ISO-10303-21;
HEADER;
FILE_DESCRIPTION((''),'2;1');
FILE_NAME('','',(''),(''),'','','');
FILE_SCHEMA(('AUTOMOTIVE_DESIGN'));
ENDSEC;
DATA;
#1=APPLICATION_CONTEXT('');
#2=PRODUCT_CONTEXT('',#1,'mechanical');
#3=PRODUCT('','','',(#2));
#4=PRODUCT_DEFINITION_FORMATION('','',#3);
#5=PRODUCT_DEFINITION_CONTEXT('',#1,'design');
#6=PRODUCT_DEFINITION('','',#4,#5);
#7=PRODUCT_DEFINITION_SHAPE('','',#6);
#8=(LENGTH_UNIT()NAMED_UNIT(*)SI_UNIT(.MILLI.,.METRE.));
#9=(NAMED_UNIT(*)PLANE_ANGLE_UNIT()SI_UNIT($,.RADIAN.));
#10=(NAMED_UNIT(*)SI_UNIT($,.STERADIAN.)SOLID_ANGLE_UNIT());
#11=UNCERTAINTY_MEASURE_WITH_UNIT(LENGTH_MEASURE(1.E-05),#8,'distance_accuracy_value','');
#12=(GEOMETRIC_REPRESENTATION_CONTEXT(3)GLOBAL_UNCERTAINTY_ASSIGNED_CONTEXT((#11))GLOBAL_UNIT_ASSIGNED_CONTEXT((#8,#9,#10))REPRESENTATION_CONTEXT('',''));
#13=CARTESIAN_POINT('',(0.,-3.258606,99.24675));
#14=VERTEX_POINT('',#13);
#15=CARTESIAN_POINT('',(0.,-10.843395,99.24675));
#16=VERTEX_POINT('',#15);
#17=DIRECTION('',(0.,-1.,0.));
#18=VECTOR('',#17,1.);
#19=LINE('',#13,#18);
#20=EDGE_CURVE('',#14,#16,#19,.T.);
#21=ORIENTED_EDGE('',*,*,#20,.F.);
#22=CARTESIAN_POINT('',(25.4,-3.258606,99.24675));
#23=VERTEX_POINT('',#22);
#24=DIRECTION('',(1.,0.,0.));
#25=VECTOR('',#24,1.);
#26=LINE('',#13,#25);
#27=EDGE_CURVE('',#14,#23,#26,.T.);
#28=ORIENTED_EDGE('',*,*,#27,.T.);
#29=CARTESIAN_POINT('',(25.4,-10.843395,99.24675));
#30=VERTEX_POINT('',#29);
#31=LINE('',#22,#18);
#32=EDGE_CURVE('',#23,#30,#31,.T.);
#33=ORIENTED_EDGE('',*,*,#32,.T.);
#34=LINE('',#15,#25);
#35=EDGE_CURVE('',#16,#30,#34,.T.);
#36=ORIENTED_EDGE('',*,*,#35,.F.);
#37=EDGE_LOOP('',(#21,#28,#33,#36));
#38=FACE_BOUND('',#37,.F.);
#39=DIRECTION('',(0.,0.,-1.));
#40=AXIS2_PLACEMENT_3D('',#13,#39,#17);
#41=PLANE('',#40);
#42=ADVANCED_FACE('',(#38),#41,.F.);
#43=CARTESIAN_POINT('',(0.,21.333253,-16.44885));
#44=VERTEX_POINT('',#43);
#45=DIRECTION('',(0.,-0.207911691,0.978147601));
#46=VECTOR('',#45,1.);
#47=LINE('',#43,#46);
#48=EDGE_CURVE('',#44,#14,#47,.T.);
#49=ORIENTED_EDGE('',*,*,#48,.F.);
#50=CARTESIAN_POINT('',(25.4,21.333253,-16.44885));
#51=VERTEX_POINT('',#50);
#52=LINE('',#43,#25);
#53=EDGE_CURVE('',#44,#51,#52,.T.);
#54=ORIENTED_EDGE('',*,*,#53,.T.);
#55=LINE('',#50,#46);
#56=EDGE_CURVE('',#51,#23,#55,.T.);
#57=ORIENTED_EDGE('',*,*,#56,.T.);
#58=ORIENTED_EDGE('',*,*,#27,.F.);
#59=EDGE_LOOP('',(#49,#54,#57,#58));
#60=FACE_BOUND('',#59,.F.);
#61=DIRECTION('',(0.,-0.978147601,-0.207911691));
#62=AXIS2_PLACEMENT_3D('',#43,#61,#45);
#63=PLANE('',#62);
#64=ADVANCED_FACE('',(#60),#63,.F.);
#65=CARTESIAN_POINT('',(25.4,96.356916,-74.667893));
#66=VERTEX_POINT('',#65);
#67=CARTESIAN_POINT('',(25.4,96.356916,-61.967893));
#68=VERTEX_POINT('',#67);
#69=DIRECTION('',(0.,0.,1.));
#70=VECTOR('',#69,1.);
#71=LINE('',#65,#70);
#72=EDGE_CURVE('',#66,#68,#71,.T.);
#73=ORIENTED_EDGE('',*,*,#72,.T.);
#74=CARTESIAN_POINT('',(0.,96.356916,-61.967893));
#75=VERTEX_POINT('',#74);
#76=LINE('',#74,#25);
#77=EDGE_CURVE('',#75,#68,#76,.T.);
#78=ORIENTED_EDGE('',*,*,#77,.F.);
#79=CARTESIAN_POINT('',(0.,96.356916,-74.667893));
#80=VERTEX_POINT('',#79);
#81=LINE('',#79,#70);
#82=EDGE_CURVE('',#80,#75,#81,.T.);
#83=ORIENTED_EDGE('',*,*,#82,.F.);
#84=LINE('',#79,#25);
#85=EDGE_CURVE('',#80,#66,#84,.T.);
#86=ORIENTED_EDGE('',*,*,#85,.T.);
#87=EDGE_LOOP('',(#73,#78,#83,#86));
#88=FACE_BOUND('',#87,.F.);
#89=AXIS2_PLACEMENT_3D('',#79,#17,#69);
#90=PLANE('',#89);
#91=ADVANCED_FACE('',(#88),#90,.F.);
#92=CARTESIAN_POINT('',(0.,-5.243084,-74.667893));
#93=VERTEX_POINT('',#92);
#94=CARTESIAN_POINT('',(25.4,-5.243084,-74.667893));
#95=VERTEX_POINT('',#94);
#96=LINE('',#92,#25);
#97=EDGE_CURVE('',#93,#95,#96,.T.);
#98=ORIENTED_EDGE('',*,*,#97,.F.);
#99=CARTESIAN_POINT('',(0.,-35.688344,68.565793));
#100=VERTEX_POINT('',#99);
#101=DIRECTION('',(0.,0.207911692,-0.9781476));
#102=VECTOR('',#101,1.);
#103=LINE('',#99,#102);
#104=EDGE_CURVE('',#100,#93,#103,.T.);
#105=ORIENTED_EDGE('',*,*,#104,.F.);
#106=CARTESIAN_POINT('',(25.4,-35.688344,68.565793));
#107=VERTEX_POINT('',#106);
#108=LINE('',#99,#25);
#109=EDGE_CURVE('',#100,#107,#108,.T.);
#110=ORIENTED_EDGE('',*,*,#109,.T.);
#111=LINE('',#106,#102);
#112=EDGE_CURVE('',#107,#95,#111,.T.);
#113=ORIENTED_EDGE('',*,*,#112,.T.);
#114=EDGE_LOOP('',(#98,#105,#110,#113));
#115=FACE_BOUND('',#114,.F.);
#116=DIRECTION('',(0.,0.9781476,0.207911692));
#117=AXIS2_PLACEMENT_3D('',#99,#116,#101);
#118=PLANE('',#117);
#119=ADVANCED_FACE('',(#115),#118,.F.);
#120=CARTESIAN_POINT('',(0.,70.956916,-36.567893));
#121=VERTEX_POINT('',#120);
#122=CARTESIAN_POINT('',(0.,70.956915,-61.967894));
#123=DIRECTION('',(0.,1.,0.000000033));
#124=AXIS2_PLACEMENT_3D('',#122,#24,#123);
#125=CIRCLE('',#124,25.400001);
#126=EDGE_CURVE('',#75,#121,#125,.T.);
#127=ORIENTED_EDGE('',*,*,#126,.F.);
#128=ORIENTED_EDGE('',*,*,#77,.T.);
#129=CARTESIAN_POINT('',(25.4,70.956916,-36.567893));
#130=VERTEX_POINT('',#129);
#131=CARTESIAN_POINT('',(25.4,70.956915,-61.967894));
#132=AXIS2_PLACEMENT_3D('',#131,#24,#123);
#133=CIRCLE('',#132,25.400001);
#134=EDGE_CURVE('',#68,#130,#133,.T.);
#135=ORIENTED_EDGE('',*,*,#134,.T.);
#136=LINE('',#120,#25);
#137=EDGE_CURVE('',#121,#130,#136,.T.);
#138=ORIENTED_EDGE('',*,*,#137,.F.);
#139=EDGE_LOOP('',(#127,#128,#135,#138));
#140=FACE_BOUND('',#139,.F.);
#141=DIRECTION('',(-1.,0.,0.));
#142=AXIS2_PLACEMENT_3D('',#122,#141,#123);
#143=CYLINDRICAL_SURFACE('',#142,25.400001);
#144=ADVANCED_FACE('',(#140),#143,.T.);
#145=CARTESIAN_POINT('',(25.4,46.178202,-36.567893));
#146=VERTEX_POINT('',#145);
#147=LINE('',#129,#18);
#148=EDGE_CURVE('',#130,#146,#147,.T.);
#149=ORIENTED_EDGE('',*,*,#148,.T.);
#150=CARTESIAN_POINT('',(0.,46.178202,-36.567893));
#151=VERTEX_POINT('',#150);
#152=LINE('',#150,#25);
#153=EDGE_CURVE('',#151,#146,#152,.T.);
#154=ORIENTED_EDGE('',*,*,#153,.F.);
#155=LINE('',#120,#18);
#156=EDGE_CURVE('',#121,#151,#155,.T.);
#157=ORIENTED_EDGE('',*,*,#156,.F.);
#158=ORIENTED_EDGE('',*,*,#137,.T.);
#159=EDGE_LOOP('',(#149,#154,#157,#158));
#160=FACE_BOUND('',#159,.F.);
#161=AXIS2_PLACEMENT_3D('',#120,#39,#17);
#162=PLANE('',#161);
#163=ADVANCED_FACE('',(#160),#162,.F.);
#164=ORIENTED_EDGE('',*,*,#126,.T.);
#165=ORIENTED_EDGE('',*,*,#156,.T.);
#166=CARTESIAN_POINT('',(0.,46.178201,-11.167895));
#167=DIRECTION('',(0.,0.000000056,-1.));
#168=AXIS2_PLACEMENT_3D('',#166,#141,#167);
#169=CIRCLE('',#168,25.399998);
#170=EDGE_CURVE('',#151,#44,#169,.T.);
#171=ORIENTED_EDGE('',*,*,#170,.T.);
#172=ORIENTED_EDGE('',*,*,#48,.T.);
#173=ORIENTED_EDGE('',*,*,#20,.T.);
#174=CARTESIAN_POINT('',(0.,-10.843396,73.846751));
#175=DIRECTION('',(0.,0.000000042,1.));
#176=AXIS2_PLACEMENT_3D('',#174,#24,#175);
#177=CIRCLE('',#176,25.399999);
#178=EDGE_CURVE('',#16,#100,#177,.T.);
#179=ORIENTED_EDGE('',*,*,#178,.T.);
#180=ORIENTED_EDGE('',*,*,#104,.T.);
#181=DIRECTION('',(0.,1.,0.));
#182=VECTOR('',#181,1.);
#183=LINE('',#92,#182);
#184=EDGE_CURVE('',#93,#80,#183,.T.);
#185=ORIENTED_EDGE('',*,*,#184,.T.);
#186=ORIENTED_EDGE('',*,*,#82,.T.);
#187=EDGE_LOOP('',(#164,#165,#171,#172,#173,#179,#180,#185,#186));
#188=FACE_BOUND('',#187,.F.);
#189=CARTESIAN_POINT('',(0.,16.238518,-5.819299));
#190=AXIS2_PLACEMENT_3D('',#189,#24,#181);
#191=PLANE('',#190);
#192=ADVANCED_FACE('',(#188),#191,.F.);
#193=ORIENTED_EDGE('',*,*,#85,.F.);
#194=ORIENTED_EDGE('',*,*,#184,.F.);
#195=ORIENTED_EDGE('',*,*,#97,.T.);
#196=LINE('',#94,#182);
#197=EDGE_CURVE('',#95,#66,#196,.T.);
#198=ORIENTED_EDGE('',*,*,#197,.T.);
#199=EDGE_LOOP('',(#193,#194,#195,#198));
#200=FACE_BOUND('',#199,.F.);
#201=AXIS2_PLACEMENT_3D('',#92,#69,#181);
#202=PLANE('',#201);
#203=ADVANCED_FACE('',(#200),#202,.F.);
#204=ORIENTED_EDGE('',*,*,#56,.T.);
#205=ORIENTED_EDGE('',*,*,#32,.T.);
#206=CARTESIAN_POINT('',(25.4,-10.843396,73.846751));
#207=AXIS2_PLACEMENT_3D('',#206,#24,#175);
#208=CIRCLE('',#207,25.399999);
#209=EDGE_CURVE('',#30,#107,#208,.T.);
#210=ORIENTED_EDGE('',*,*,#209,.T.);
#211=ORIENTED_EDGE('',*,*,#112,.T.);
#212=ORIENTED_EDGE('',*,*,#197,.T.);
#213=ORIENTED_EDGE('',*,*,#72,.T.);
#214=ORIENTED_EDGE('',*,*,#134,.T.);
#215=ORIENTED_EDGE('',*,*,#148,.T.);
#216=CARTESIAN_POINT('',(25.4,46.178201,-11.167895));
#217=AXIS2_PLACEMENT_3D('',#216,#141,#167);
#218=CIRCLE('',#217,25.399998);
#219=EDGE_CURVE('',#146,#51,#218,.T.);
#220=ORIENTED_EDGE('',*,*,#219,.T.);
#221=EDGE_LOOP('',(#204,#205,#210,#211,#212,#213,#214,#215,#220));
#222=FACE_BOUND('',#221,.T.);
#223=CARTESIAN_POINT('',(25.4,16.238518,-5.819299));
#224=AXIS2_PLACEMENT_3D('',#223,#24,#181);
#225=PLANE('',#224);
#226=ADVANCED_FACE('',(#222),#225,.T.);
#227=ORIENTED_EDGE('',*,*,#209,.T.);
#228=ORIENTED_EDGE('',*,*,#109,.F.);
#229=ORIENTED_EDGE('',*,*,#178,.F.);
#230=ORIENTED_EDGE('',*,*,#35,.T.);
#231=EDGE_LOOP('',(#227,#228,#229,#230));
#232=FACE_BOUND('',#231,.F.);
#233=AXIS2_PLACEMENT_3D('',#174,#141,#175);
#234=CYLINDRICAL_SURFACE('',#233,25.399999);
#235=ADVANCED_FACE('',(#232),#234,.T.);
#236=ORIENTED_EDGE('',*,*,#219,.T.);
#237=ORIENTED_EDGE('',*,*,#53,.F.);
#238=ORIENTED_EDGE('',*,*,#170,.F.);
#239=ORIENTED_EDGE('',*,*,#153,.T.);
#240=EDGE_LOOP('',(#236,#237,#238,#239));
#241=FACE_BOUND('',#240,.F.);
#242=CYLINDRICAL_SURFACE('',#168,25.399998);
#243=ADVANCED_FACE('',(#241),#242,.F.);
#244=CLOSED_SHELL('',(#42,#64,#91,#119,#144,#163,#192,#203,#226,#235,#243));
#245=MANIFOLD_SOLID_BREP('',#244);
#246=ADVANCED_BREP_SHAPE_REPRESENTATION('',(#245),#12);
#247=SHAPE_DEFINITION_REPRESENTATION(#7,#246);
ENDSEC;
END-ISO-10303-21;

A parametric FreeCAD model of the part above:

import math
import FreeCAD as App
import Part
import Sketcher

V = App.Vector
Q = App.Units.Quantity

doc = App.newDocument("Part")
body = doc.addObject("PartDesign::Body", "Body")

# Sketch on YZ plane
sketch1 = body.newObject("Sketcher::SketchObject", "Sketch")
sketch1.AttachmentSupport = (doc.getObject("YZ_Plane"), [""])
sketch1.MapMode = "FlatFace"
sketch1.addGeometry(Part.ArcOfCircle(Part.Circle(V(-11, 74, 0), V(0, 0, 1), 25), math.radians(90), math.radians(192)), False)
sketch1.addGeometry(Part.LineSegment(V(-36, 69, 0), V(-5, -75, 0)), False)
sketch1.addGeometry(Part.LineSegment(V(-5, -75, 0), V(96, -75, 0)), False)
sketch1.addGeometry(Part.LineSegment(V(96, -75, 0), V(96, -62, 0)), False)
sketch1.addGeometry(Part.ArcOfCircle(Part.Circle(V(71, -62, 0), V(0, 0, 1), 25), math.radians(0), math.radians(90)), False)
sketch1.addGeometry(Part.LineSegment(V(71, -37, 0), V(46, -37, 0)), False)
sketch1.addGeometry(Part.ArcOfCircle(Part.Circle(V(46, -11, 0), V(0, 0, 1), 25), math.radians(-168), math.radians(-90)), False)
sketch1.addGeometry(Part.LineSegment(V(21, -16, 0), V(-3, 99, 0)), False)
sketch1.addGeometry(Part.LineSegment(V(-3, 99, 0), V(-11, 99, 0)), False)
sketch1.addConstraint(Sketcher.Constraint("Tangent", 0, 2, 1, 1))
sketch1.addConstraint(Sketcher.Constraint("Coincident", 1, 2, 2, 1))
sketch1.addConstraint(Sketcher.Constraint("Coincident", 2, 2, 3, 1))
sketch1.addConstraint(Sketcher.Constraint("Tangent", 3, 2, 4, 1))
sketch1.addConstraint(Sketcher.Constraint("Tangent", 4, 2, 5, 1))
sketch1.addConstraint(Sketcher.Constraint("Tangent", 5, 2, 6, 2))
sketch1.addConstraint(Sketcher.Constraint("Tangent", 6, 1, 7, 1))
sketch1.addConstraint(Sketcher.Constraint("Coincident", 7, 2, 8, 1))
sketch1.addConstraint(Sketcher.Constraint("Tangent", 8, 2, 0, 1))
sketch1.addConstraint(Sketcher.Constraint("Horizontal", 2))
sketch1.addConstraint(Sketcher.Constraint("Vertical", 3))
sketch1.addConstraint(Sketcher.Constraint("Horizontal", 5))
sketch1.addConstraint(Sketcher.Constraint("Horizontal", 8))
sketch1.addConstraint(Sketcher.Constraint("Equal", 0, 4))
sketch1.addConstraint(Sketcher.Constraint("Equal", 0, 6))
sketch1.addConstraint(Sketcher.Constraint("Parallel", 1, 7))
sketch1.addConstraint(Sketcher.Constraint("Radius", 0, Q("1 in")))
sketch1.addConstraint(Sketcher.Constraint("DistanceX", 2, 1, 2, 2, Q("4 in")))
sketch1.addConstraint(Sketcher.Constraint("DistanceY", 3, 1, 3, 2, Q("0.5 in")))
sketch1.addConstraint(Sketcher.Constraint("Angle", 1, Q("-78 deg")))
sketch1.addConstraint(Sketcher.Constraint("DistanceX", 8, 2, 8, 1, Q("7.584789 mm")))
sketch1.addConstraint(Sketcher.Constraint("DistanceX", -1, 1, 6, 3, Q("46.178201 mm")))
sketch1.addConstraint(Sketcher.Constraint("DistanceY", 6, 1, 7, 2, Q("115.6956 mm")))
sketch1.addConstraint(Sketcher.Constraint("DistanceY", -1, 1, 0, 3, Q("73.846751 mm")))
pad1 = body.newObject("PartDesign::Pad", "Pad")
pad1.Profile = sketch1
pad1.Length = Q("1 in")

doc.recompute()
